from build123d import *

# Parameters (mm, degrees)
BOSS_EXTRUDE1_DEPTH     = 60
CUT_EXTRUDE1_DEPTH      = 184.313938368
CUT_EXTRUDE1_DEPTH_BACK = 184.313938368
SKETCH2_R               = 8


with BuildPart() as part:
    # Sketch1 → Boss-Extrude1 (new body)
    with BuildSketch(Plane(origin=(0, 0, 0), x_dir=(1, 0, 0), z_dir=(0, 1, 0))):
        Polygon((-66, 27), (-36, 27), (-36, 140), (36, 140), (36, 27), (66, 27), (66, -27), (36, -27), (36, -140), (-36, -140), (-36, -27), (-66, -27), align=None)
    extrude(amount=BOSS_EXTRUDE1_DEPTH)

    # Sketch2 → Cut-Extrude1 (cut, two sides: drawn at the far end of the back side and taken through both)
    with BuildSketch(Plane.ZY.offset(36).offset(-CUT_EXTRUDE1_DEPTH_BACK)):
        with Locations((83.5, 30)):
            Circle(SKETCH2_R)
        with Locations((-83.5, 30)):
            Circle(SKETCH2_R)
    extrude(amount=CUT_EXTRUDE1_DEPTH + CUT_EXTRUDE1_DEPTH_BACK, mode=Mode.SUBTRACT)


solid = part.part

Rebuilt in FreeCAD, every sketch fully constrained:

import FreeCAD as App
import Part
import Sketcher

V = App.Vector

doc = App.newDocument("Part")
params = doc.addObject("Spreadsheet::Sheet", "Params")
for row, (alias, value) in enumerate([
    ("sketch1_width", "30 mm"),
    ("sketch1_width2", "72 mm"),
    ("sketch1_height", "54 mm"),
    ("sketch1_height2", "113 mm"),
    ("pad1_length", "60 mm"),
    ("sketch2_diameter", "16 mm"),
], start=1):
    params.set(f"A{row}", alias)
    params.set(f"B{row}", "=" + value)
    params.setAlias(f"B{row}", alias)

body = doc.addObject("PartDesign::Body", "Body")

sketch1 = body.newObject("Sketcher::SketchObject", "Sketch")
sketch1.AttachmentSupport = (doc.getObject("XZ_Plane"), [""])
sketch1.MapMode = "FlatFace"
sketch1.addGeometry([
    Part.LineSegment(V(-36, -27, 0), V(-66, -27, 0)),
    Part.LineSegment(V(-66, -27, 0), V(-66, 27, 0)),
    Part.LineSegment(V(-66, 27, 0), V(-36, 27, 0)),
    Part.LineSegment(V(-36, 27, 0), V(-36, 140, 0)),
    Part.LineSegment(V(-36, 140, 0), V(36, 140, 0)),
    Part.LineSegment(V(36, 140, 0), V(36, 27, 0)),
    Part.LineSegment(V(36, 27, 0), V(66, 27, 0)),
    Part.LineSegment(V(66, 27, 0), V(66, -27, 0)),
    Part.LineSegment(V(66, -27, 0), V(36, -27, 0)),
    Part.LineSegment(V(36, -27, 0), V(36, -140, 0)),
    Part.LineSegment(V(36, -140, 0), V(-36, -140, 0)),
    Part.LineSegment(V(-36, -140, 0), V(-36, -27, 0)),
], False)
sketch1.addConstraint([
    Sketcher.Constraint("Coincident", 0, 2, 1, 1),
    Sketcher.Constraint("Coincident", 1, 2, 2, 1),
    Sketcher.Constraint("Coincident", 2, 2, 3, 1),
    Sketcher.Constraint("Coincident", 3, 2, 4, 1),
    Sketcher.Constraint("Coincident", 4, 2, 5, 1),
    Sketcher.Constraint("Coincident", 5, 2, 6, 1),
    Sketcher.Constraint("Coincident", 6, 2, 7, 1),
    Sketcher.Constraint("Coincident", 7, 2, 8, 1),
    Sketcher.Constraint("Coincident", 8, 2, 9, 1),
    Sketcher.Constraint("Coincident", 9, 2, 10, 1),
    Sketcher.Constraint("Coincident", 10, 2, 11, 1),
    Sketcher.Constraint("Coincident", 11, 2, 0, 1),
    Sketcher.Constraint("Horizontal", 0),
    Sketcher.Constraint("Vertical", 1),
    Sketcher.Constraint("Horizontal", 2),
    Sketcher.Constraint("Vertical", 3),
    Sketcher.Constraint("Horizontal", 4),
    Sketcher.Constraint("Vertical", 5),
    Sketcher.Constraint("Horizontal", 6),
    Sketcher.Constraint("Vertical", 7),
    Sketcher.Constraint("Horizontal", 8),
    Sketcher.Constraint("Vertical", 9),
    Sketcher.Constraint("Horizontal", 10),
    Sketcher.Constraint("Vertical", 11),
    Sketcher.Constraint("Symmetric", 0, 2, 6, 2, -1, 1),
    Sketcher.Constraint("Symmetric", 2, 2, 8, 2, -1, 1),
    Sketcher.Constraint("Symmetric", 4, 2, 10, 2, -1, 1),
    Sketcher.Constraint("Symmetric", 2, 2, 5, 2, -2),
    Sketcher.Constraint("DistanceX", 0, 2, 0, 1, 30.0),
    Sketcher.Constraint("DistanceX", 4, 1, 4, 2, 72.0),
    Sketcher.Constraint("DistanceY", 1, 1, 1, 2, 54.0),
    Sketcher.Constraint("DistanceY", 3, 1, 3, 2, 113.0),
])
sketch1.setExpression("Constraints[28]", "Params.sketch1_width")
sketch1.setExpression("Constraints[29]", "Params.sketch1_width2")
sketch1.setExpression("Constraints[30]", "Params.sketch1_height")
sketch1.setExpression("Constraints[31]", "Params.sketch1_height2")
pad1 = body.newObject("PartDesign::Pad", "Pad")
pad1.Profile = sketch1
pad1.setExpression("Length", "Params.pad1_length")
pad1.Reversed = True

sketch2 = body.newObject("Sketcher::SketchObject", "Sketch001")
sketch2.AttachmentSupport = (doc.getObject("YZ_Plane"), [""])
sketch2.MapMode = "FlatFace"
sketch2.AttachmentOffset = App.Placement(V(0, 0, -36), App.Rotation())
sketch2.addGeometry([
    Part.Circle(V(30, 83.5, 0), V(0, 0, 1), 8),
    Part.Circle(V(30, -83.5, 0), V(0, 0, 1), 8),
], False)
sketch2.addConstraint([
    Sketcher.Constraint("Equal", 0, 1),
    Sketcher.Constraint("Symmetric", 0, 3, 1, 3, -1),
    Sketcher.Constraint("Diameter", 0, 16.0),
    Sketcher.Constraint("DistanceX", -1, 1, 0, 3, 30.0),
    Sketcher.Constraint("DistanceY", 1, 3, 0, 3, 167.0),
])
sketch2.setExpression("Constraints[2]", "Params.sketch2_diameter")
pocket1 = body.newObject("PartDesign::Pocket", "Pocket")
pocket1.Profile = sketch2
pocket1.Type = "ThroughAll"
pocket1.Midplane = True

doc.recompute()
